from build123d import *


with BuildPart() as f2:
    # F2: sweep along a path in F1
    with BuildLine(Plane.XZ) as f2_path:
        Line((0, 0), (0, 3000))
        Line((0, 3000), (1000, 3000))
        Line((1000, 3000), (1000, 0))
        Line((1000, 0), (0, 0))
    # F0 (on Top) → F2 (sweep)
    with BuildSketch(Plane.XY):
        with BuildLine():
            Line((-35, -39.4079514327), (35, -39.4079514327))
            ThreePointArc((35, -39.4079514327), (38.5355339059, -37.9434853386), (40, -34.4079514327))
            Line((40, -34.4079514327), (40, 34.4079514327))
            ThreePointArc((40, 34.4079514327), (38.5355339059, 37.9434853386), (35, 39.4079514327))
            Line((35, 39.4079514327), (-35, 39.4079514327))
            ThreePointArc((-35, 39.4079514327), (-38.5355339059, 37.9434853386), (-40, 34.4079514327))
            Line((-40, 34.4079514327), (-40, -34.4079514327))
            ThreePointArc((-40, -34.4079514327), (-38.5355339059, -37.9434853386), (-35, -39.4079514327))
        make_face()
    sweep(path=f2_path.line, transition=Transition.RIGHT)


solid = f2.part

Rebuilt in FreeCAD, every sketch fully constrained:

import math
import FreeCAD as App
import Part
import Sketcher

V = App.Vector


def add_polygon(sketch, points):
    """Adds a closed chain of lines whose ends are joined by coincident constraints."""
    first, n = sketch.GeometryCount, len(points)
    for a, b in zip(points, points[1:] + points[:1]):
        sketch.addGeometry(Part.LineSegment(App.Vector(*a, 0), App.Vector(*b, 0)), False)
    for i in range(n):
        sketch.addConstraint(Sketcher.Constraint("Coincident", first + i, 2, first + (i + 1) % n, 1))

doc = App.newDocument("Part")
body = doc.addObject("PartDesign::Body", "Body")

sketch1 = body.newObject("Sketcher::SketchObject", "Sketch")
sketch1.AttachmentSupport = (doc.getObject("XY_Plane"), [""])
sketch1.MapMode = "FlatFace"
sketch1.addGeometry(Part.LineSegment(V(-35, -39, 0), V(35, -39, 0)), False)
sketch1.addGeometry(Part.ArcOfCircle(Part.Circle(V(35, -34, 0), V(0, 0, 1), 5), math.radians(-90), math.radians(0)), False)
sketch1.addGeometry(Part.LineSegment(V(40, -34, 0), V(40, 34, 0)), False)
sketch1.addGeometry(Part.ArcOfCircle(Part.Circle(V(35, 34, 0), V(0, 0, 1), 5), math.radians(0), math.radians(90)), False)
sketch1.addGeometry(Part.LineSegment(V(35, 39, 0), V(-35, 39, 0)), False)
sketch1.addGeometry(Part.ArcOfCircle(Part.Circle(V(-35, 34, 0), V(0, 0, 1), 5), math.radians(90), math.radians(180)), False)
sketch1.addGeometry(Part.LineSegment(V(-40, 34, 0), V(-40, -34, 0)), False)
sketch1.addGeometry(Part.ArcOfCircle(Part.Circle(V(-35, -34, 0), V(0, 0, 1), 5), math.radians(180), math.radians(270)), False)
sketch1.addConstraint(Sketcher.Constraint("Tangent", 0, 2, 1, 1))
sketch1.addConstraint(Sketcher.Constraint("Tangent", 1, 2, 2, 1))
sketch1.addConstraint(Sketcher.Constraint("Tangent", 2, 2, 3, 1))
sketch1.addConstraint(Sketcher.Constraint("Tangent", 3, 2, 4, 1))
sketch1.addConstraint(Sketcher.Constraint("Tangent", 4, 2, 5, 1))
sketch1.addConstraint(Sketcher.Constraint("Tangent", 5, 2, 6, 1))
sketch1.addConstraint(Sketcher.Constraint("Tangent", 6, 2, 7, 1))
sketch1.addConstraint(Sketcher.Constraint("Tangent", 7, 2, 0, 1))
sketch1.addConstraint(Sketcher.Constraint("Horizontal", 0))
sketch1.addConstraint(Sketcher.Constraint("Vertical", 2))
sketch1.addConstraint(Sketcher.Constraint("Horizontal", 4))
sketch1.addConstraint(Sketcher.Constraint("Vertical", 6))
sketch1.addConstraint(Sketcher.Constraint("Equal", 1, 3))
sketch1.addConstraint(Sketcher.Constraint("Equal", 3, 5))
sketch1.addConstraint(Sketcher.Constraint("Equal", 5, 7))
sketch1.addConstraint(Sketcher.Constraint("Symmetric", 1, 3, 5, 3, -1, 1))
sketch1.addConstraint(Sketcher.Constraint("Radius", 1, 5.0))
sketch1.addConstraint(Sketcher.Constraint("DistanceX", 0, 1, 0, 2, 70.0))
sketch1.addConstraint(Sketcher.Constraint("DistanceY", 2, 1, 2, 2, 68.815903))

sketch2 = body.newObject("Sketcher::SketchObject", "Sketch001")
sketch2.AttachmentSupport = (doc.getObject("XZ_Plane"), [""])
sketch2.MapMode = "FlatFace"
add_polygon(sketch2, [(0, 0), (0, 3000), (1000, 3000), (1000, 0)])
sketch2.addConstraint(Sketcher.Constraint("Vertical", 0))
sketch2.addConstraint(Sketcher.Constraint("Horizontal", 1))
sketch2.addConstraint(Sketcher.Constraint("Vertical", 2))
sketch2.addConstraint(Sketcher.Constraint("Horizontal", 3))
sketch2.addConstraint(Sketcher.Constraint("Coincident", 3, 2, -1, 1))
sketch2.addConstraint(Sketcher.Constraint("DistanceX", 1, 1, 1, 2, 1000.0))
sketch2.addConstraint(Sketcher.Constraint("DistanceY", 0, 1, 0, 2, 3000.0))
doc.recompute()

additivepipe = body.newObject("PartDesign::AdditivePipe", "AdditivePipe")
additivepipe.Profile = sketch1
additivepipe.Spine = (sketch2, ["Edge1", "Edge2", "Edge3", "Edge4"])
additivepipe.Transition = "Right corner"

doc.recompute()
